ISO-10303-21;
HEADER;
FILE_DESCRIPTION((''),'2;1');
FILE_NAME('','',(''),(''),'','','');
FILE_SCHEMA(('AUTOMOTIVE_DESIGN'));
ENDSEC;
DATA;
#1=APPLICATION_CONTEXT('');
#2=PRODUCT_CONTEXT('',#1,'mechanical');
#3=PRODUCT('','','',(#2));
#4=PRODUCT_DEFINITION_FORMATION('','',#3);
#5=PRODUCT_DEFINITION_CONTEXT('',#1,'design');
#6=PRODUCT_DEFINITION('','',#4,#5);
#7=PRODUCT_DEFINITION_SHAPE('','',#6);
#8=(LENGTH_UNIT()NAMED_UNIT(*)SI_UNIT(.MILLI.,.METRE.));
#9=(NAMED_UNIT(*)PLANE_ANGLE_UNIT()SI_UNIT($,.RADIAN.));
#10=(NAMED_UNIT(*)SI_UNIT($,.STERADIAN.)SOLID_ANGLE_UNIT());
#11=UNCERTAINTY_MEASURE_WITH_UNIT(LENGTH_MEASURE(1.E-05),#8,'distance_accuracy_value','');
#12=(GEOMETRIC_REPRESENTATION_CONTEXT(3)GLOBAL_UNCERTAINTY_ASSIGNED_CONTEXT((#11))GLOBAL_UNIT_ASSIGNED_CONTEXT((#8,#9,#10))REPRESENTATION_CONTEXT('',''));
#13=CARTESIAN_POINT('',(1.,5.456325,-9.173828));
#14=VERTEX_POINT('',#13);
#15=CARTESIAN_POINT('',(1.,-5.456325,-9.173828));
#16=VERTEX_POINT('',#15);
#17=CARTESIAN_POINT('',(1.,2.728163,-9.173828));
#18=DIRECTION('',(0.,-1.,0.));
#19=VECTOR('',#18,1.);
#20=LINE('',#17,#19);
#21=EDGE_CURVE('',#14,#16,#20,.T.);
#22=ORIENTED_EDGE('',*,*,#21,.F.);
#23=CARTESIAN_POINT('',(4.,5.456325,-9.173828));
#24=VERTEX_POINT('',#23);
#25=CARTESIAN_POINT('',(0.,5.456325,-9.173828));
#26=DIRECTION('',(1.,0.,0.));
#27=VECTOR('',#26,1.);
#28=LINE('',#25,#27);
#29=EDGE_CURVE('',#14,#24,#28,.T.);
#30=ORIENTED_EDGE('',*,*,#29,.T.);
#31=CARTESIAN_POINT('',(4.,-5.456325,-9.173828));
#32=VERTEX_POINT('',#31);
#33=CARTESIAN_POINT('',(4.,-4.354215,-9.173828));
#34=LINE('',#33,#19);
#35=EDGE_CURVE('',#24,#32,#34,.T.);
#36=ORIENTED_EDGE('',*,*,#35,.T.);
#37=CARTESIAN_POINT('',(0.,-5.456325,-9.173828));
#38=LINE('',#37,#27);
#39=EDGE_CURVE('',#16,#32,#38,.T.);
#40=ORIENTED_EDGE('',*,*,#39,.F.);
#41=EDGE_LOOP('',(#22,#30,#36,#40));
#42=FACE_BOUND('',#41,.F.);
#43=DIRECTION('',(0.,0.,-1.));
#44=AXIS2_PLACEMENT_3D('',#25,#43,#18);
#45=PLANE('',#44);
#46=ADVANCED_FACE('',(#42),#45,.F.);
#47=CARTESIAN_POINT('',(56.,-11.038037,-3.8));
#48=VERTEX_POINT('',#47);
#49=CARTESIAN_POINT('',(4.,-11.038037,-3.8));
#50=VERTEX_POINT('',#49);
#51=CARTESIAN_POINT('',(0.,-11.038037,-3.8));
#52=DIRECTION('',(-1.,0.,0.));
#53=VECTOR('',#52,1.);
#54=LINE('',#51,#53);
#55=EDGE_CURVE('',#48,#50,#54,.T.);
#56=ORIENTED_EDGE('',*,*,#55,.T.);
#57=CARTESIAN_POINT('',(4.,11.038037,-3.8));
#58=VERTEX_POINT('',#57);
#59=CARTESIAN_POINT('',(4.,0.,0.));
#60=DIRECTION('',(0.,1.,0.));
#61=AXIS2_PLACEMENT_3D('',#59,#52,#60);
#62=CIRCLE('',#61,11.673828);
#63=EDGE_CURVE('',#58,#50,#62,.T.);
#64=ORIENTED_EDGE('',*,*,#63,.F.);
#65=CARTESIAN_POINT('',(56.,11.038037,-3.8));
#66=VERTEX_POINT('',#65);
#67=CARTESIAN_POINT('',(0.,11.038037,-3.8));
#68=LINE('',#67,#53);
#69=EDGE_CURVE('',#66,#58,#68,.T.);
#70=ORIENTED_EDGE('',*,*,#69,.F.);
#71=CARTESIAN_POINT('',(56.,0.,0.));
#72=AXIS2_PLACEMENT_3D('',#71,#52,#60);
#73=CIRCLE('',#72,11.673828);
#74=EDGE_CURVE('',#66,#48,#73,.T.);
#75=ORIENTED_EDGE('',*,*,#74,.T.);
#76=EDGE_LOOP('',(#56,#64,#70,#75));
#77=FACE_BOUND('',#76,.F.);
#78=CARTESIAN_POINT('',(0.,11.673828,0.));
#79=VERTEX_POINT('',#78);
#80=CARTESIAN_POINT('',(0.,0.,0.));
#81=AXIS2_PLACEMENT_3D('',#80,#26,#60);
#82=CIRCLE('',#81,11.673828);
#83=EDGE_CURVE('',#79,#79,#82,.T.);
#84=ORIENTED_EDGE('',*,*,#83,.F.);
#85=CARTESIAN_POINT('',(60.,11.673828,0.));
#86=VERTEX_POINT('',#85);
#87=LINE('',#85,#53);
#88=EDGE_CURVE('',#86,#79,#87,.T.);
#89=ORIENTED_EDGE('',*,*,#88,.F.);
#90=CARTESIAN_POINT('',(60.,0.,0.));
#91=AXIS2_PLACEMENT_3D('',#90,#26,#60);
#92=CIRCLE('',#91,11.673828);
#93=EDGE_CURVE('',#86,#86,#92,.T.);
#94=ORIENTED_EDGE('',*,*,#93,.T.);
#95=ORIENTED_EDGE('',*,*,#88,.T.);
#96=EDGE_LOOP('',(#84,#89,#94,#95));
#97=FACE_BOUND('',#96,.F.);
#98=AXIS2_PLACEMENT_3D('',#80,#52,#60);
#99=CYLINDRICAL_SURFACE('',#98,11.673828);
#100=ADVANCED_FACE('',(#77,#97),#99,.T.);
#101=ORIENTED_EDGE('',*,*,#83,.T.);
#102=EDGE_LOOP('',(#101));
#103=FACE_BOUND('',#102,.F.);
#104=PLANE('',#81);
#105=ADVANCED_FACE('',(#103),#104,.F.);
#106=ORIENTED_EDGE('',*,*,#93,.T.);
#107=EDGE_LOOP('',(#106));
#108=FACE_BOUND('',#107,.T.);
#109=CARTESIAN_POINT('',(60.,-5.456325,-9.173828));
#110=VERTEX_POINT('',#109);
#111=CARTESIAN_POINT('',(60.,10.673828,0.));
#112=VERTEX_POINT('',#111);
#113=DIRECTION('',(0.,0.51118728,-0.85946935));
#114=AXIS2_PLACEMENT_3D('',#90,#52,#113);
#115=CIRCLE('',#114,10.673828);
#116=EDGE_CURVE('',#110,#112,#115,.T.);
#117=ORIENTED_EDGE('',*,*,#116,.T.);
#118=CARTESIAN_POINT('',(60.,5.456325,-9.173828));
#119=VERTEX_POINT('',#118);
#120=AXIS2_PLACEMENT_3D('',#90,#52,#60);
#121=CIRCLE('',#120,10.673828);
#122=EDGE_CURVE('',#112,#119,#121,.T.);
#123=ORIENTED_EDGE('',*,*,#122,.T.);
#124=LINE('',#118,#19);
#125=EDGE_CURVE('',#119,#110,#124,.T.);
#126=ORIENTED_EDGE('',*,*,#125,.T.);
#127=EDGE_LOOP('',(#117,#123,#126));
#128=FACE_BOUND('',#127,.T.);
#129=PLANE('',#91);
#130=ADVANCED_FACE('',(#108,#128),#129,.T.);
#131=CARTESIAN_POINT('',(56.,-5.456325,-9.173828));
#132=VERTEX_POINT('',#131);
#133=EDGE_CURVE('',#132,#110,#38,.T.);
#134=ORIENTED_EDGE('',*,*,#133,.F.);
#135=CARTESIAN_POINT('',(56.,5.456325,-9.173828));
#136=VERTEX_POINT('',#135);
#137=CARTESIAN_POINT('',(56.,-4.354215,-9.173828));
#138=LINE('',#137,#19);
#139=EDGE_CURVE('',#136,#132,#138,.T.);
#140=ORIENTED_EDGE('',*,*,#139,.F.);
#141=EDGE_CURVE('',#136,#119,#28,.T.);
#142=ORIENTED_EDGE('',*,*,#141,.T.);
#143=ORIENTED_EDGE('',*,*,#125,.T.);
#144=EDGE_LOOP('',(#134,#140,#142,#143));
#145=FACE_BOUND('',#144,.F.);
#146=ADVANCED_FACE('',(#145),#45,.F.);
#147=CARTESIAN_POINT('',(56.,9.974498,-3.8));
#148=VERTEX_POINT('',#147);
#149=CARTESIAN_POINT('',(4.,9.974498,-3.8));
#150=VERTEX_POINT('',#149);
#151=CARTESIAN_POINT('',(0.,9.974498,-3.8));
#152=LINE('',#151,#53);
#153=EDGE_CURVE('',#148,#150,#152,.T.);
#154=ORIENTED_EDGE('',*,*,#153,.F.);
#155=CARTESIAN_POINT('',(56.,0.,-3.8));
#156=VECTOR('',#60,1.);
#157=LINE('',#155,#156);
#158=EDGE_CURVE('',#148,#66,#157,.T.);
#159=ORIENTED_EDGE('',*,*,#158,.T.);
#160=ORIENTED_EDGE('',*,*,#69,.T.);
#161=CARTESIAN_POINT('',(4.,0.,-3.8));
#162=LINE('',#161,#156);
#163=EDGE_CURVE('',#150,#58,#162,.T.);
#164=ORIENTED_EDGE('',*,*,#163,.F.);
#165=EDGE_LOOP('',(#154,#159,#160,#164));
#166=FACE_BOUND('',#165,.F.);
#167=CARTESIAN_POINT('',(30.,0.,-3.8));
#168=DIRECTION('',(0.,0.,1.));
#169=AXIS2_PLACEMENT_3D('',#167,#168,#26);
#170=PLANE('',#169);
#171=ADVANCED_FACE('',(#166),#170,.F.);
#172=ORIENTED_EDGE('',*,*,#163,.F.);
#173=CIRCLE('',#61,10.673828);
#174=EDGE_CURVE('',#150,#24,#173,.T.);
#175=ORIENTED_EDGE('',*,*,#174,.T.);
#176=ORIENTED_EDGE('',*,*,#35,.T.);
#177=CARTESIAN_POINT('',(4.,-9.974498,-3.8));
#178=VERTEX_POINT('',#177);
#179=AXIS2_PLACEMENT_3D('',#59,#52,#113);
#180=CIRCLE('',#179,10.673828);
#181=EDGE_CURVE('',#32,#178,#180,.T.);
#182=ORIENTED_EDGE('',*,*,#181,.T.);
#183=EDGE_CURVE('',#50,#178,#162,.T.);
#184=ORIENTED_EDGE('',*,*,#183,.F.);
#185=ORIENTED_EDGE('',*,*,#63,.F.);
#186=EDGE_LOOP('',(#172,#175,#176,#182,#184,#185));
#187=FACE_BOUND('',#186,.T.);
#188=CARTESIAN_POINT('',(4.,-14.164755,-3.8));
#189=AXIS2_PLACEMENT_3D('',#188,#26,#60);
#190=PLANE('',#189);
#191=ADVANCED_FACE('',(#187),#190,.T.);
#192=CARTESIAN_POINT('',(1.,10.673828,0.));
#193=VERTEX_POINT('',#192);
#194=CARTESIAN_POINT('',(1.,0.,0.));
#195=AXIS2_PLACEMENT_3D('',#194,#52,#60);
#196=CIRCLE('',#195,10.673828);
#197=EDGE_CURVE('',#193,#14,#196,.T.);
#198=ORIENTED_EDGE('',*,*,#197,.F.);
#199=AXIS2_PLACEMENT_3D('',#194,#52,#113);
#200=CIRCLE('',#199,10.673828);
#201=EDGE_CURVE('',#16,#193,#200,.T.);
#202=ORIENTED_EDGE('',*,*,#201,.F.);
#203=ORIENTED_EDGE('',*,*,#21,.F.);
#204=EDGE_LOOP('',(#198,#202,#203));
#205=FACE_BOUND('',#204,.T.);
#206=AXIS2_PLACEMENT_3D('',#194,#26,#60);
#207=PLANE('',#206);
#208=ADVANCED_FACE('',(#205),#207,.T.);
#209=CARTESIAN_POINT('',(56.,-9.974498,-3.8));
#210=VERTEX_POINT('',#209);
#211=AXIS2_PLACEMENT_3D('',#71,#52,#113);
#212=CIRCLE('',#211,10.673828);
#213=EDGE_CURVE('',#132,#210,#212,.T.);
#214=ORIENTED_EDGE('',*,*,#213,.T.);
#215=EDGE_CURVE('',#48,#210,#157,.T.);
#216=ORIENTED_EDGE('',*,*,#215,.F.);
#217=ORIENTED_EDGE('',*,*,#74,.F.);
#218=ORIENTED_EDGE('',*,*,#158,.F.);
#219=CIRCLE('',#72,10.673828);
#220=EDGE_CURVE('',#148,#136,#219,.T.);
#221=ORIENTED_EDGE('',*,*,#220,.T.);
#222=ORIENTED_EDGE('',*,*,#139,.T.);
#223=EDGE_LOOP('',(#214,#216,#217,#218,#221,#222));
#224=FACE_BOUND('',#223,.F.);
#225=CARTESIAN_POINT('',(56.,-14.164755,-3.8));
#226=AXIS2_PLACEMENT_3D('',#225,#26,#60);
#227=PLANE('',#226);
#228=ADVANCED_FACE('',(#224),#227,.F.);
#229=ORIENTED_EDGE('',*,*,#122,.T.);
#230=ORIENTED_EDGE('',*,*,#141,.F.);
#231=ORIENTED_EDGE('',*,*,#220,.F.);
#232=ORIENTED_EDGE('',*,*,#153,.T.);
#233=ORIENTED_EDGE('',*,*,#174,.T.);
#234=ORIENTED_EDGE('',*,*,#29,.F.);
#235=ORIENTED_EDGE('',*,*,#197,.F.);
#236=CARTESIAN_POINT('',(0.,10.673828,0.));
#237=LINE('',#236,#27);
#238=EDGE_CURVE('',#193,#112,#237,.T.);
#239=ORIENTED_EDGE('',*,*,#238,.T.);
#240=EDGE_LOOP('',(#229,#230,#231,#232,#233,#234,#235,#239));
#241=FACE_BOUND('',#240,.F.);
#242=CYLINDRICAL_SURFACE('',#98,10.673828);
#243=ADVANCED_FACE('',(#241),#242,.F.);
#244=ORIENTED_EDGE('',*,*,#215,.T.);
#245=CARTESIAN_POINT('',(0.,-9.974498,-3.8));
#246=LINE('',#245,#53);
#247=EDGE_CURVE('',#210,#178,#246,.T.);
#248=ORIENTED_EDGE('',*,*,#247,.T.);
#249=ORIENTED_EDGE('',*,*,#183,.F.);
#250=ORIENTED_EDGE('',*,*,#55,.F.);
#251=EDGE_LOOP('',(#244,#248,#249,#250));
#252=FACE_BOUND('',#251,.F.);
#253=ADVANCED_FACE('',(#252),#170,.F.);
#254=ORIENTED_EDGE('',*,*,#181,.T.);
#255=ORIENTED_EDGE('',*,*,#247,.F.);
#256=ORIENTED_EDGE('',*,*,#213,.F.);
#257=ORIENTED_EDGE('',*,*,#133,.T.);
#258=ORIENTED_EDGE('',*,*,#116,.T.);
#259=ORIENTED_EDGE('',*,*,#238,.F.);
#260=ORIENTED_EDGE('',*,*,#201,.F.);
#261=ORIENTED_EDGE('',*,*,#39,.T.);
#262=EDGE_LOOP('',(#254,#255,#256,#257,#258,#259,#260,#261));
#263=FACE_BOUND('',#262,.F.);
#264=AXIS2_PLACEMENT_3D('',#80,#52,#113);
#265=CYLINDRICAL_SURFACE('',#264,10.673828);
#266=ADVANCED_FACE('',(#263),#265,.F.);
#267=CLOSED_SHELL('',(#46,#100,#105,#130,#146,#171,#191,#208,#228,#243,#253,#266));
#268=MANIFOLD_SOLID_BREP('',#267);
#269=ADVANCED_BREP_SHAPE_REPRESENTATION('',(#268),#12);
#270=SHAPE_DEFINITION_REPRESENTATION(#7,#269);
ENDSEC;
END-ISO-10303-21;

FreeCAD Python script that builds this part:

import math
import FreeCAD as App
import Part
import Sketcher
from FreeCAD import Vector

doc = App.newDocument("Part")
params = doc.addObject("Spreadsheet::Sheet", "Params")
for row, (alias, value) in enumerate([
    ("pad1_length", "60 mm"),
    ("sketch2_width", "52 mm"),
    ("pocket1_length", "9.3 mm"),
    ("pad2_length", "1 mm"),
], start=1):
    params.set(f"A{row}", alias)
    params.set(f"B{row}", "=" + value)
    params.setAlias(f"B{row}", alias)

body = doc.addObject("PartDesign::Body", "Body")

sketch1 = body.newObject("Sketcher::SketchObject", "Sketch")
sketch1.AttachmentSupport = (doc.getObject("YZ_Plane"), [""])
sketch1.MapMode = "FlatFace"
sketch1.addGeometry([
    Part.Circle(Vector(0, 0, 0), Vector(0, 0, 1), 11.673828),
    Part.ArcOfCircle(Part.Circle(Vector(0, 0, 0), Vector(0, 0, 1), 10.673828), math.radians(0), math.radians(239.257054)),
    Part.ArcOfCircle(Part.Circle(Vector(0, 0, 0), Vector(0, 0, 1), 10.673828), math.radians(-59.257054), math.radians(0)),
    Part.LineSegment(Vector(5.456325, -9.173828, 0), Vector(-5.456325, -9.173828, 0)),
], False)
sketch1.addConstraint([
    Sketcher.Constraint("Tangent", 1, 1, 2, 2),
    Sketcher.Constraint("Coincident", 2, 1, 3, 1),
    Sketcher.Constraint("Coincident", 3, 2, 1, 2),
    Sketcher.Constraint("Horizontal", 3),
    Sketcher.Constraint("Coincident", 0, 3, -1, 1),
    Sketcher.Constraint("Coincident", 1, 3, -1, 1),
    Sketcher.Constraint("Equal", 1, 2),
    Sketcher.Constraint("PointOnObject", 1, 1, -1),
    Sketcher.Constraint("Radius", 1, 10.673828),
    Sketcher.Constraint("Diameter", 0, 23.347656),
    Sketcher.Constraint("DistanceX", 3, 2, 3, 1, 10.91265),
])
pad1 = body.newObject("PartDesign::Pad", "Pad")
pad1.Profile = sketch1
pad1.setExpression("Length", "Params.pad1_length")

sketch2 = body.newObject("Sketcher::SketchObject", "Sketch001")
sketch2.AttachmentSupport = (doc.getObject("XY_Plane"), [""])
sketch2.MapMode = "FlatFace"
sketch2.AttachmentOffset = App.Placement(Vector(0, 0, -3.8), App.Rotation())
sketch2.addGeometry([
    Part.LineSegment(Vector(4, 14.164755, 0), Vector(4, -14.164755, 0)),
    Part.LineSegment(Vector(4, -14.164755, 0), Vector(56, -14.164755, 0)),
    Part.LineSegment(Vector(56, -14.164755, 0), Vector(56, 14.164755, 0)),
    Part.LineSegment(Vector(56, 14.164755, 0), Vector(4, 14.164755, 0)),
], False)
sketch2.addConstraint([
    Sketcher.Constraint("Coincident", 0, 2, 1, 1),
    Sketcher.Constraint("Coincident", 1, 2, 2, 1),
    Sketcher.Constraint("Coincident", 2, 2, 3, 1),
    Sketcher.Constraint("Coincident", 3, 2, 0, 1),
    Sketcher.Constraint("Vertical", 0),
    Sketcher.Constraint("Horizontal", 1),
    Sketcher.Constraint("Vertical", 2),
    Sketcher.Constraint("Horizontal", 3),
    Sketcher.Constraint("DistanceX", 1, 1, 1, 2, 52.0),
    Sketcher.Constraint("DistanceX", -1, 1, 0, 2, 4.0),
    Sketcher.Constraint("DistanceY", 0, 2, 0, 1, 28.32951),
    Sketcher.Constraint("DistanceY", 0, 2, -1, 1, 14.164755),
])
sketch2.setExpression("Constraints[8]", "Params.sketch2_width")
pocket1 = body.newObject("PartDesign::Pocket", "Pocket")
pocket1.Profile = sketch2
pocket1.setExpression("Length", "Params.pocket1_length")

sketch3 = body.newObject("Sketcher::SketchObject", "Sketch002")
sketch3.AttachmentSupport = (doc.getObject("YZ_Plane"), [""])
sketch3.MapMode = "FlatFace"
sketch3.addGeometry(Part.Circle(Vector(0, 0, 0), Vector(0, 0, 1), 11.673828), False)
sketch3.addConstraint([
    Sketcher.Constraint("Coincident", 0, 3, -1, 1),
    Sketcher.Constraint("Diameter", 0, 23.347656),
])
pad2 = body.newObject("PartDesign::Pad", "Pad001")
pad2.Profile = sketch3
pad2.setExpression("Length", "Params.pad2_length")

doc.recompute()
